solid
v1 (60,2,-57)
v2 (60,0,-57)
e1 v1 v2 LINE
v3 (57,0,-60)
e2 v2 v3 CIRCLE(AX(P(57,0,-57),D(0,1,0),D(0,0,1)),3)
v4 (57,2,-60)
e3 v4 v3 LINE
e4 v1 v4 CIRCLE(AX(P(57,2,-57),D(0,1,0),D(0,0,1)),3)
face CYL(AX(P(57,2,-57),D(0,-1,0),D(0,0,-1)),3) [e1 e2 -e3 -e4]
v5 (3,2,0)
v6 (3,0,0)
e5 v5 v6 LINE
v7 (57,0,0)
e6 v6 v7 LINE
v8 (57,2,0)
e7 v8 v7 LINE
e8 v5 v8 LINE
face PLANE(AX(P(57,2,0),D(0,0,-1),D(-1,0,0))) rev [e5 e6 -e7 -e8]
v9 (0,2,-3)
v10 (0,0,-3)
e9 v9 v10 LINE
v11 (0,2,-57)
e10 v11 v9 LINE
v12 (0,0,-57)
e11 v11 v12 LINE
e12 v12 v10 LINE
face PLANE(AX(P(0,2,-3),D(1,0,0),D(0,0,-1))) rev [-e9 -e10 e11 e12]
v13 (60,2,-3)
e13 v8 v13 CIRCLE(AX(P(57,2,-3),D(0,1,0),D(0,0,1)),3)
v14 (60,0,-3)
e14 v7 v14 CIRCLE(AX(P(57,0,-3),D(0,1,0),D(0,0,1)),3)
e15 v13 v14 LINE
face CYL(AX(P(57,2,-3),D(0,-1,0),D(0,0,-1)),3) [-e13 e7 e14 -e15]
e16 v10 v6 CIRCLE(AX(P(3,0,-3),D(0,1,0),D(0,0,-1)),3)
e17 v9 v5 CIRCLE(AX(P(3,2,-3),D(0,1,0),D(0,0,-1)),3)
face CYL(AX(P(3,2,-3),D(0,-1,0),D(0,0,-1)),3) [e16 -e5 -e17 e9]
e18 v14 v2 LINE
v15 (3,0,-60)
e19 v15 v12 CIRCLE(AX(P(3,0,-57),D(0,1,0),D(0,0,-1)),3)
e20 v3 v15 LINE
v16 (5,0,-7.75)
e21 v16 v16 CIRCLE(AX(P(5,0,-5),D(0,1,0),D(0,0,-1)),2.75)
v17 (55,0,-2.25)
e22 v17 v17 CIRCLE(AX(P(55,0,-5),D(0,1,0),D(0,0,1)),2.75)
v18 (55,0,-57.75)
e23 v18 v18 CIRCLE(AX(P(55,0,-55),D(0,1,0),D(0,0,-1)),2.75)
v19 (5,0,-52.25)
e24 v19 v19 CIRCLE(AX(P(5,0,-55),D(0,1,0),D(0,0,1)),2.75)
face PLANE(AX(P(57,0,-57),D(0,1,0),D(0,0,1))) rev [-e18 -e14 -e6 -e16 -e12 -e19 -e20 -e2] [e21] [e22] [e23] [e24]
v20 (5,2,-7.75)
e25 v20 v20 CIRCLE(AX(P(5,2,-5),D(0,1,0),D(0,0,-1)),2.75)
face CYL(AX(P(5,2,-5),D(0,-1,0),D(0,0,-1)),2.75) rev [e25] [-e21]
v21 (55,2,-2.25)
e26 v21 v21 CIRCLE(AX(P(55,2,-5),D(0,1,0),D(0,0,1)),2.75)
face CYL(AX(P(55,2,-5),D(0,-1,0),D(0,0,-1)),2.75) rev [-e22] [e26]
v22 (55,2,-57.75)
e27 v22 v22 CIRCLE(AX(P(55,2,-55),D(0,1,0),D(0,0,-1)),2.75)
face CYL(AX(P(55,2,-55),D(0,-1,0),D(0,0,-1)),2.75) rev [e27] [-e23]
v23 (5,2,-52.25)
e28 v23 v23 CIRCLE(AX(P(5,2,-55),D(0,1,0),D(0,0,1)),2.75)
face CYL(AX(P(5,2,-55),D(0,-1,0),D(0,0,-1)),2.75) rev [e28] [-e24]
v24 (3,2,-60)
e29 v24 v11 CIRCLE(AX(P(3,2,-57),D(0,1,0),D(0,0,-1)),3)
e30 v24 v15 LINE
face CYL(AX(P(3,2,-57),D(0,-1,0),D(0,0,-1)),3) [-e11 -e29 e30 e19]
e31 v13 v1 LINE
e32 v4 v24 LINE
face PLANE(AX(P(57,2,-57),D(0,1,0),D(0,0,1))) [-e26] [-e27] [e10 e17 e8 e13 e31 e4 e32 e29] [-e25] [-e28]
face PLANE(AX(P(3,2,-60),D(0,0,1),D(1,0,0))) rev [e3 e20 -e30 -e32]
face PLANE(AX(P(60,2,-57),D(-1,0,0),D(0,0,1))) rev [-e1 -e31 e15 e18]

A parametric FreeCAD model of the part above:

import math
import FreeCAD as App
import Part
import Sketcher

V = App.Vector
Q = App.Units.Quantity

doc = App.newDocument("Part")
body = doc.addObject("PartDesign::Body", "Body")

# Sketch on XZ plane
sketch1 = body.newObject("Sketcher::SketchObject", "Sketch")
sketch1.AttachmentSupport = (doc.getObject("XZ_Plane"), [""])
sketch1.MapMode = "FlatFace"
sketch1.addGeometry([
    Part.LineSegment(V(0, -57, 0), V(0, -3, 0)),  # 0
    Part.ArcOfCircle(Part.Circle(V(3, -3, 0), V(0, 0, 1), 3), math.radians(90), math.radians(180)),  # 1
    Part.LineSegment(V(3, 0, 0), V(57, 0, 0)),  # 2
    Part.ArcOfCircle(Part.Circle(V(57, -3, 0), V(0, 0, 1), 3), math.radians(0), math.radians(90)),  # 3
    Part.LineSegment(V(60, -3, 0), V(60, -57, 0)),  # 4
    Part.ArcOfCircle(Part.Circle(V(57, -57, 0), V(0, 0, 1), 3), math.radians(-90), math.radians(0)),  # 5
    Part.LineSegment(V(57, -60, 0), V(3, -60, 0)),  # 6
    Part.ArcOfCircle(Part.Circle(V(3, -57, 0), V(0, 0, 1), 3), math.radians(180), math.radians(270)),  # 7
    Part.Circle(V(55, -5, 0), V(0, 0, 1), 2.8),  # 8
    Part.Circle(V(5, -5, 0), V(0, 0, 1), 2.8),  # 9
    Part.Circle(V(55, -55, 0), V(0, 0, 1), 2.8),  # 10
    Part.Circle(V(5, -55, 0), V(0, 0, 1), 2.8),  # 11
], False)
sketch1.addConstraint([
    Sketcher.Constraint("Tangent", 0, 2, 1, 2),
    Sketcher.Constraint("Tangent", 1, 1, 2, 1),
    Sketcher.Constraint("Tangent", 2, 2, 3, 2),
    Sketcher.Constraint("Tangent", 3, 1, 4, 1),
    Sketcher.Constraint("Tangent", 4, 2, 5, 2),
    Sketcher.Constraint("Tangent", 5, 1, 6, 1),
    Sketcher.Constraint("Tangent", 6, 2, 7, 2),
    Sketcher.Constraint("Tangent", 7, 1, 0, 1),
    Sketcher.Constraint("Vertical", 0),
    Sketcher.Constraint("Horizontal", 2),
    Sketcher.Constraint("Vertical", 4),
    Sketcher.Constraint("Horizontal", 6),
    Sketcher.Constraint("Equal", 1, 3),
    Sketcher.Constraint("Equal", 3, 5),
    Sketcher.Constraint("Equal", 5, 7),
    Sketcher.Constraint("Equal", 8, 9),
    Sketcher.Constraint("Equal", 9, 10),
    Sketcher.Constraint("Equal", 10, 11),
    Sketcher.Constraint("PointOnObject", 0, 2, -2),
    Sketcher.Constraint("PointOnObject", 1, 1, -1),
    Sketcher.Constraint("Horizontal", 8, 3, 9, 3),
    Sketcher.Constraint("Horizontal", 10, 3, 11, 3),
    Sketcher.Constraint("Vertical", 8, 3, 10, 3),
    Sketcher.Constraint("Vertical", 9, 3, 11, 3),
    Sketcher.Constraint("Equal", 6, 0),
    Sketcher.Constraint("Radius", 1, Q("3 mm")),
    Sketcher.Constraint("Diameter", 8, Q("5.5 mm")),
    Sketcher.Constraint("DistanceX", 2, 1, 2, 2, Q("54 mm")),
    Sketcher.Constraint("DistanceX", -1, 1, 8, 3, Q("55 mm")),
    Sketcher.Constraint("DistanceY", 8, 3, -1, 1, Q("5 mm")),
    Sketcher.Constraint("DistanceX", -1, 1, 9, 3, Q("5 mm")),
    Sketcher.Constraint("DistanceY", 10, 3, -1, 1, Q("55 mm")),
])
pad1 = body.newObject("PartDesign::Pad", "Pad")
pad1.Profile = sketch1
pad1.Length = 2
pad1.Reversed = True

doc.recompute()
